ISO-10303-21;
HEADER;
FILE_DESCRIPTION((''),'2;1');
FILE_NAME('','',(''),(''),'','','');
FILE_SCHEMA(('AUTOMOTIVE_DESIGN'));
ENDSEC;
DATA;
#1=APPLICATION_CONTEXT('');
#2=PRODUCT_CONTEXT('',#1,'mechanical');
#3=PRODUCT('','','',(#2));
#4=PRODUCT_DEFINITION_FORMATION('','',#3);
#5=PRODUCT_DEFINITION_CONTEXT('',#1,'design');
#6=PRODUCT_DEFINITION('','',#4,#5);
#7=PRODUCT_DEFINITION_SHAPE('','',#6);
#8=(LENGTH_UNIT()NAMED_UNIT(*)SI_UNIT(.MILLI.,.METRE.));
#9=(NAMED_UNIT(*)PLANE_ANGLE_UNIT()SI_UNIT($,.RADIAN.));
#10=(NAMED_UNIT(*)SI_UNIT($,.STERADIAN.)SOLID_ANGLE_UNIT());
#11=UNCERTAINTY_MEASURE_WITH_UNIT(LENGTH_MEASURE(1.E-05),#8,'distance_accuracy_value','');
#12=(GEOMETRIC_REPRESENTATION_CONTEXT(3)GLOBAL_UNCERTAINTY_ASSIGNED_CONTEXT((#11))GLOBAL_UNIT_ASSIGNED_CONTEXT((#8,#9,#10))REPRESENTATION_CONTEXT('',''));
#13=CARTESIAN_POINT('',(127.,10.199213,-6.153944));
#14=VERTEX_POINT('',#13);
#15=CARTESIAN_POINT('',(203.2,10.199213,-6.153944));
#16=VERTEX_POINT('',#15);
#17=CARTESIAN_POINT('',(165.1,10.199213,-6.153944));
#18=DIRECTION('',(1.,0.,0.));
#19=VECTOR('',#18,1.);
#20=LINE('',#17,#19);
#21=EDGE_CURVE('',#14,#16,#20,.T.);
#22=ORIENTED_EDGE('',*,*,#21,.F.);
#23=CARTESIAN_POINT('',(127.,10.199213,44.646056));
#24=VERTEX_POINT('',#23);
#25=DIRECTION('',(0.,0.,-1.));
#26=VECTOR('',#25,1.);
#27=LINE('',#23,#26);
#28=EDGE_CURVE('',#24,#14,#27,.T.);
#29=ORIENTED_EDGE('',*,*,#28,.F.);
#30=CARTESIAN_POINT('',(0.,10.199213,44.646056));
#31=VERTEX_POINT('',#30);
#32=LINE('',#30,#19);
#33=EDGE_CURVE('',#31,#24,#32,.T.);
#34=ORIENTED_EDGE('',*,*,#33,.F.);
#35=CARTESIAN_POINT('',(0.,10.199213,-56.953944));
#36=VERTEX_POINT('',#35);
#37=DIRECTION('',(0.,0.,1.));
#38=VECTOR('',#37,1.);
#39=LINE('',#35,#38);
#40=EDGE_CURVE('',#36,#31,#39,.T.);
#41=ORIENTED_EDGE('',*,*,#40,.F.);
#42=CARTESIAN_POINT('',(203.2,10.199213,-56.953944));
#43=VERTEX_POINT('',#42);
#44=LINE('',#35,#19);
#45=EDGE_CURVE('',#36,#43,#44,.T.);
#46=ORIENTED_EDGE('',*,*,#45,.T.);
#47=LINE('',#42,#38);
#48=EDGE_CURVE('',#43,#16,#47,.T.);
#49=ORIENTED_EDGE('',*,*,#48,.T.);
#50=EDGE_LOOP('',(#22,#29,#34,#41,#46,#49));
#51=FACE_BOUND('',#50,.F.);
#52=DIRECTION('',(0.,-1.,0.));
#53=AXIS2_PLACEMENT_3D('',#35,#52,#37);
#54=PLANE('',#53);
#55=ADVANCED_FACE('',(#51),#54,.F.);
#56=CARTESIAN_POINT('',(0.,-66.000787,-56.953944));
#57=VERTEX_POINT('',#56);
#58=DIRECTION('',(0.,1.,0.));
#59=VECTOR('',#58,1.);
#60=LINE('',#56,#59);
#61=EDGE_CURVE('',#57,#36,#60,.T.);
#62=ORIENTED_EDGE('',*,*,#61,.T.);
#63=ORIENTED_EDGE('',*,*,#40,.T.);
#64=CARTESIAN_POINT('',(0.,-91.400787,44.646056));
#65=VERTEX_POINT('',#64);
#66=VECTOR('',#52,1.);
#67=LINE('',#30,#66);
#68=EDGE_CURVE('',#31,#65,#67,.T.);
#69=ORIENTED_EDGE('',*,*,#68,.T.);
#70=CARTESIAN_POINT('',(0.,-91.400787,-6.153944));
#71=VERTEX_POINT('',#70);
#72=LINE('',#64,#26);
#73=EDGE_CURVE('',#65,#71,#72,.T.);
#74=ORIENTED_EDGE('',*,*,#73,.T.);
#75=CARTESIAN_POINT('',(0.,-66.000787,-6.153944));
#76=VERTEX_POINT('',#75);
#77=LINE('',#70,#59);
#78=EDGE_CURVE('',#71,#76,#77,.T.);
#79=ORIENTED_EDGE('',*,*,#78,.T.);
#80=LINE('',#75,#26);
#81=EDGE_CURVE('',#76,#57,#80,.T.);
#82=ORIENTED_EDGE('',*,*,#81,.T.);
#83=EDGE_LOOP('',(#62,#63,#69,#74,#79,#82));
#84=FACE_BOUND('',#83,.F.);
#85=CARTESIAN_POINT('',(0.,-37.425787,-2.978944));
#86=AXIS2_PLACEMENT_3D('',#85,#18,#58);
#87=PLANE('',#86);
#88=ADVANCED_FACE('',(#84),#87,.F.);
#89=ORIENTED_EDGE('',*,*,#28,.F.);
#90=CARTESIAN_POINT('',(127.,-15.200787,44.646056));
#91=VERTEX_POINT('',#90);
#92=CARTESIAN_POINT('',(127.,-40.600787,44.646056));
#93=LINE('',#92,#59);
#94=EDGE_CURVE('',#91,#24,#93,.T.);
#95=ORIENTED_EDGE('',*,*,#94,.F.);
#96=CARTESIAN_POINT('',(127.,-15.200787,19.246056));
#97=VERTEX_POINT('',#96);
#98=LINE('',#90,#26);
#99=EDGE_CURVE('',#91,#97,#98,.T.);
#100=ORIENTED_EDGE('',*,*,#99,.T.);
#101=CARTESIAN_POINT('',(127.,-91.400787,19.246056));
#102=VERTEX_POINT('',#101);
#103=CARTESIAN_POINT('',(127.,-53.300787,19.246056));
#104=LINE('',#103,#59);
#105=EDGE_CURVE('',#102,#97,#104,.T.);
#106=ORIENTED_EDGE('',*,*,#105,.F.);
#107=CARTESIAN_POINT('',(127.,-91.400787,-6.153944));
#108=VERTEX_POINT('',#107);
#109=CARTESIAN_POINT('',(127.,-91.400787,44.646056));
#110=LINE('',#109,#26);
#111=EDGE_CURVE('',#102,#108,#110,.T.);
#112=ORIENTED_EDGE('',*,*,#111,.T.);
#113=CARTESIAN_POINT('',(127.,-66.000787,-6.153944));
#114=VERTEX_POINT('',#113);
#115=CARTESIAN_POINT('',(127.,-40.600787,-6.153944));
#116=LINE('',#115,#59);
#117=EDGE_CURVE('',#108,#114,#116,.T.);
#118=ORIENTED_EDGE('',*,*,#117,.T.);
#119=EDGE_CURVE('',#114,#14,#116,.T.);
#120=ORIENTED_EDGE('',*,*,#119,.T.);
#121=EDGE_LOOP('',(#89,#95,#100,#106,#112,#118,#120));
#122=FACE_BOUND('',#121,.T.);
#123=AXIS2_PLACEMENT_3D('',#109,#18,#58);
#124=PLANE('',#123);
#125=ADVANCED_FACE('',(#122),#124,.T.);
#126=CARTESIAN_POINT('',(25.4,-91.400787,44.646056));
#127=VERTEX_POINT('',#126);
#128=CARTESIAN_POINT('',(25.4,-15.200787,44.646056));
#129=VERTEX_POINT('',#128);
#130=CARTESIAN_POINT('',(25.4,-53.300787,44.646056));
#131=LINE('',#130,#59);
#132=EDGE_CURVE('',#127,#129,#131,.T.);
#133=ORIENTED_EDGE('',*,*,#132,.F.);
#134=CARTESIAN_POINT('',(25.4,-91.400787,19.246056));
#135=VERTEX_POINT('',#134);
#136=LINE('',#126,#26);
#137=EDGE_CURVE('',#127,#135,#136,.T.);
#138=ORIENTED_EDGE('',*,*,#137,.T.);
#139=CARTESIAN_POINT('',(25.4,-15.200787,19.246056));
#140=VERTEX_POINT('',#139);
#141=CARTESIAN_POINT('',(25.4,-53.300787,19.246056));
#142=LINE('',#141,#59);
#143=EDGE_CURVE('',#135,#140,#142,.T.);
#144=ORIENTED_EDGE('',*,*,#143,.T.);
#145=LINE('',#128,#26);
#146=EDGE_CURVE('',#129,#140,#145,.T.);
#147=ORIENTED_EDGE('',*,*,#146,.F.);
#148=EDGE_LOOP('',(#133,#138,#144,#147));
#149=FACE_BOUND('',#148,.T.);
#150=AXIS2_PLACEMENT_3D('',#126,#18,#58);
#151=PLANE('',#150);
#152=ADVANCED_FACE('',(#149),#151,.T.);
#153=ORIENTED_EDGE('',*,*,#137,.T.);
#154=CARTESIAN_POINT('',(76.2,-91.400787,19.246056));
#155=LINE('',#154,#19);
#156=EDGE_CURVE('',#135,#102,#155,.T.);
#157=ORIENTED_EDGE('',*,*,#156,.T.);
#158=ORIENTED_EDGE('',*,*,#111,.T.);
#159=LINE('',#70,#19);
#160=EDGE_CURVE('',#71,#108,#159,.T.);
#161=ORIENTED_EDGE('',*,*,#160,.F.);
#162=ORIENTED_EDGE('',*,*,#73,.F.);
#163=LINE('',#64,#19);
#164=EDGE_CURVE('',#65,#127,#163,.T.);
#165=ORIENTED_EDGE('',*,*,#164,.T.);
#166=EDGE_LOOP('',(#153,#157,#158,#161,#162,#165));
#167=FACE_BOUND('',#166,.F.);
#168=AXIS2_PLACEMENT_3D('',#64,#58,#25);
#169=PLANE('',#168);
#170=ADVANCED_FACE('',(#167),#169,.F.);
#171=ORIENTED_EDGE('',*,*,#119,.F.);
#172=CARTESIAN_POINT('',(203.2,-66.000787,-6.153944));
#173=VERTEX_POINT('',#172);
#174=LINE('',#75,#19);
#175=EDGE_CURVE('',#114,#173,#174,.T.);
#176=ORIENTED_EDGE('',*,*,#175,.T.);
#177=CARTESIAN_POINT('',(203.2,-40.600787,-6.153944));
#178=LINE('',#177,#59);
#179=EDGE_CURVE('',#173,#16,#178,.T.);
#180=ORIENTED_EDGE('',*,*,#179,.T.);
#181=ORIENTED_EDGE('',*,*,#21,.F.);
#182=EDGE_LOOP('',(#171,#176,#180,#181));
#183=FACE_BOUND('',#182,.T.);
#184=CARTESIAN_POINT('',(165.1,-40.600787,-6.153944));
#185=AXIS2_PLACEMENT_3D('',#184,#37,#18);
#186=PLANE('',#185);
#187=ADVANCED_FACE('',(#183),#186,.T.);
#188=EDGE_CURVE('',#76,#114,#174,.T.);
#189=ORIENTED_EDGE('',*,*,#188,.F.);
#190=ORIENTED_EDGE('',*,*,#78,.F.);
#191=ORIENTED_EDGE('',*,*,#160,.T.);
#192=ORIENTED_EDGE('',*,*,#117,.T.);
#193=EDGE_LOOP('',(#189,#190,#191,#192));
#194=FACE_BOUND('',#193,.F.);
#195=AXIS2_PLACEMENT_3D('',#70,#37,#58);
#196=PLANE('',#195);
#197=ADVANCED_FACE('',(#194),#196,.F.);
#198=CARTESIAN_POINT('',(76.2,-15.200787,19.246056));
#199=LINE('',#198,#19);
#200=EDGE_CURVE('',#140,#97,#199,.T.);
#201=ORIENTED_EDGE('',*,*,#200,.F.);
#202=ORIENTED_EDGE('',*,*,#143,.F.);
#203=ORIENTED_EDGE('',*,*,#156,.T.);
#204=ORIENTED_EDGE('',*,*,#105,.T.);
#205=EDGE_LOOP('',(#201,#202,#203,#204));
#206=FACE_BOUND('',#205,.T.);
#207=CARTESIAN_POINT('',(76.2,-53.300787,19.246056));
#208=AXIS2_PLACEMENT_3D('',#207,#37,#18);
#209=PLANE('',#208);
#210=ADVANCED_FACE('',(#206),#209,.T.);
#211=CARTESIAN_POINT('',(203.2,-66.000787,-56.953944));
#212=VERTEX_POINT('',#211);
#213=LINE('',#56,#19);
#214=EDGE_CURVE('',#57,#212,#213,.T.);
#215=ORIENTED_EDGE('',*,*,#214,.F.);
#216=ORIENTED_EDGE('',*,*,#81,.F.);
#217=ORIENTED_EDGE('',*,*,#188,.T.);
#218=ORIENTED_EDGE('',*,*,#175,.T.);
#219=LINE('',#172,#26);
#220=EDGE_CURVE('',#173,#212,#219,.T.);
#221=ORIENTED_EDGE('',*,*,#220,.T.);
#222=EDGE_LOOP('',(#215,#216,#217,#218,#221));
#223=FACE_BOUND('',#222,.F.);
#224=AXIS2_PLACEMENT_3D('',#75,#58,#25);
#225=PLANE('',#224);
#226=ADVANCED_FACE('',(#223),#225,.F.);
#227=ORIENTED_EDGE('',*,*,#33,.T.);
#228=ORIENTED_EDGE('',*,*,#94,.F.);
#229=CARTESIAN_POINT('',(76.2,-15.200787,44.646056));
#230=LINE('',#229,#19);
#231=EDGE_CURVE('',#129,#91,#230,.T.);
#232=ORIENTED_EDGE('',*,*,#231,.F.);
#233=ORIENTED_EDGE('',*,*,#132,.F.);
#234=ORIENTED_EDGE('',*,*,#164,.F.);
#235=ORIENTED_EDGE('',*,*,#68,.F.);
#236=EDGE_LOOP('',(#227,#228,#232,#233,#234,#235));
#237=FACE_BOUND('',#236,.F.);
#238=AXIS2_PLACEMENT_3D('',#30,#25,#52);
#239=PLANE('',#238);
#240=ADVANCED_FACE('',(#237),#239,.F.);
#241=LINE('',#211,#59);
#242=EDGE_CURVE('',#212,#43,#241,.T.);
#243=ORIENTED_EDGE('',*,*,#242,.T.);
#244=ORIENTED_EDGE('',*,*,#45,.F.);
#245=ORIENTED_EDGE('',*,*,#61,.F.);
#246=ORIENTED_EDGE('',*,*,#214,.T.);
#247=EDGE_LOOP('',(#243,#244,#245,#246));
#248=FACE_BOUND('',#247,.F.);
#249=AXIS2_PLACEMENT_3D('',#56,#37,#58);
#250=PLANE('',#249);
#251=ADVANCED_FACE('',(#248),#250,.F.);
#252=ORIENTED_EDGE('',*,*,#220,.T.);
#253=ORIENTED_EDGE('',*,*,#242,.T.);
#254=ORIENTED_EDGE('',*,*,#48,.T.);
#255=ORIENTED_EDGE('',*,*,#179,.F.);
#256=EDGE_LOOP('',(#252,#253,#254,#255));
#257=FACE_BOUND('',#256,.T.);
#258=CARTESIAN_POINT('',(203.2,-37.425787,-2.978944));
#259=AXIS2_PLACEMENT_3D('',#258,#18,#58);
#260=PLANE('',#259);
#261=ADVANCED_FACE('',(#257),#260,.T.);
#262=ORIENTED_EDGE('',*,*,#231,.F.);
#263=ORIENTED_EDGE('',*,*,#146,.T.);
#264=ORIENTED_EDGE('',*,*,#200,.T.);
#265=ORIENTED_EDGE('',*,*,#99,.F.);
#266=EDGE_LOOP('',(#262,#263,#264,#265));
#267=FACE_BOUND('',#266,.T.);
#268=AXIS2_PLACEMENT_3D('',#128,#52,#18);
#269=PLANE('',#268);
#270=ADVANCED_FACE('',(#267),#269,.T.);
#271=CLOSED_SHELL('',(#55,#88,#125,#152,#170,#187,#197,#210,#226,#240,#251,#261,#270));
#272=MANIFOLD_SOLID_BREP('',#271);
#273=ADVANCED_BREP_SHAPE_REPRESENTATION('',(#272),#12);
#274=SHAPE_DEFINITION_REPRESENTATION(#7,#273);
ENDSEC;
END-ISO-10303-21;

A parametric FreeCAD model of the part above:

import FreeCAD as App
import Part
import Sketcher

V = App.Vector
Q = App.Units.Quantity


def add_polygon(sketch, points):
    """Adds a closed chain of lines whose ends are joined by coincident constraints."""
    first, n = sketch.GeometryCount, len(points)
    for a, b in zip(points, points[1:] + points[:1]):
        sketch.addGeometry(Part.LineSegment(App.Vector(*a, 0), App.Vector(*b, 0)), False)
    for i in range(n):
        sketch.addConstraint(Sketcher.Constraint("Coincident", first + i, 2, first + (i + 1) % n, 1))

doc = App.newDocument("Part")
body = doc.addObject("PartDesign::Body", "Body")

# Sketch on YZ plane
sketch1 = body.newObject("Sketcher::SketchObject", "Sketch")
sketch1.AttachmentSupport = (doc.getObject("YZ_Plane"), [""])
sketch1.MapMode = "FlatFace"
add_polygon(sketch1, [(-66, -57), (10, -57), (10, 45), (-91, 45), (-91, -6), (-66, -6)])  # lines 0-5
sketch1.addConstraint([
    Sketcher.Constraint("Horizontal", 0),
    Sketcher.Constraint("Vertical", 1),
    Sketcher.Constraint("Horizontal", 2),
    Sketcher.Constraint("Vertical", 3),
    Sketcher.Constraint("Horizontal", 4),
    Sketcher.Constraint("Vertical", 5),
    Sketcher.Constraint("Equal", 2, 1),
    Sketcher.Constraint("Equal", 3, 5),
    Sketcher.Constraint("DistanceX", 0, 1, 0, 2, Q("3 in")),
    Sketcher.Constraint("DistanceX", 2, 2, 2, 1, Q("4 in")),
    Sketcher.Constraint("DistanceX", -1, 1, 0, 2, Q("10.199213 mm")),
    Sketcher.Constraint("DistanceY", 0, 2, -1, 1, Q("56.953944 mm")),
])
pad1 = body.newObject("PartDesign::Pad", "Pad")
pad1.Profile = sketch1
pad1.Length = Q("8 in")

# Sketch on XY plane
sketch2 = body.newObject("Sketcher::SketchObject", "Sketch001")
sketch2.AttachmentSupport = (doc.getObject("XY_Plane"), [""])
sketch2.MapMode = "FlatFace"
sketch2.AttachmentOffset = App.Placement(V(0, 0, 44.646056), App.Rotation())
add_polygon(sketch2, [(25, -15), (25, -91), (127, -91), (127, -15)])  # lines 0-3
sketch2.addConstraint([
    Sketcher.Constraint("Vertical", 0),
    Sketcher.Constraint("Horizontal", 1),
    Sketcher.Constraint("Vertical", 2),
    Sketcher.Constraint("Horizontal", 3),
    Sketcher.Constraint("DistanceX", 1, 1, 1, 2, Q("4 in")),
    Sketcher.Constraint("DistanceY", 0, 2, 0, 1, Q("3 in")),
    Sketcher.Constraint("DistanceX", -1, 1, 0, 2, Q("1 in")),
    Sketcher.Constraint("DistanceY", 0, 2, -1, 1, Q("91.400787 mm")),
])
pocket1 = body.newObject("PartDesign::Pocket", "Pocket")
pocket1.Profile = sketch2
pocket1.Length = Q("1 in")

# Sketch on XY plane
sketch3 = body.newObject("Sketcher::SketchObject", "Sketch002")
sketch3.AttachmentSupport = (doc.getObject("XY_Plane"), [""])
sketch3.MapMode = "FlatFace"
sketch3.AttachmentOffset = App.Placement(V(0, 0, 44.646056), App.Rotation())
add_polygon(sketch3, [(127, 10), (127, -91), (203, -91), (203, 10)])  # lines 0-3
sketch3.addConstraint([
    Sketcher.Constraint("Vertical", 0),
    Sketcher.Constraint("Horizontal", 1),
    Sketcher.Constraint("Vertical", 2),
    Sketcher.Constraint("Horizontal", 3),
    Sketcher.Constraint("DistanceX", 1, 1, 1, 2, Q("3 in")),
    Sketcher.Constraint("DistanceY", 0, 2, 0, 1, Q("4 in")),
    Sketcher.Constraint("DistanceX", -1, 1, 0, 2, Q("5 in")),
    Sketcher.Constraint("DistanceY", 0, 2, -1, 1, Q("91.400787 mm")),
])
pocket2 = body.newObject("PartDesign::Pocket", "Pocket001")
pocket2.Profile = sketch3
pocket2.Length = Q("2 in")

doc.recompute()
